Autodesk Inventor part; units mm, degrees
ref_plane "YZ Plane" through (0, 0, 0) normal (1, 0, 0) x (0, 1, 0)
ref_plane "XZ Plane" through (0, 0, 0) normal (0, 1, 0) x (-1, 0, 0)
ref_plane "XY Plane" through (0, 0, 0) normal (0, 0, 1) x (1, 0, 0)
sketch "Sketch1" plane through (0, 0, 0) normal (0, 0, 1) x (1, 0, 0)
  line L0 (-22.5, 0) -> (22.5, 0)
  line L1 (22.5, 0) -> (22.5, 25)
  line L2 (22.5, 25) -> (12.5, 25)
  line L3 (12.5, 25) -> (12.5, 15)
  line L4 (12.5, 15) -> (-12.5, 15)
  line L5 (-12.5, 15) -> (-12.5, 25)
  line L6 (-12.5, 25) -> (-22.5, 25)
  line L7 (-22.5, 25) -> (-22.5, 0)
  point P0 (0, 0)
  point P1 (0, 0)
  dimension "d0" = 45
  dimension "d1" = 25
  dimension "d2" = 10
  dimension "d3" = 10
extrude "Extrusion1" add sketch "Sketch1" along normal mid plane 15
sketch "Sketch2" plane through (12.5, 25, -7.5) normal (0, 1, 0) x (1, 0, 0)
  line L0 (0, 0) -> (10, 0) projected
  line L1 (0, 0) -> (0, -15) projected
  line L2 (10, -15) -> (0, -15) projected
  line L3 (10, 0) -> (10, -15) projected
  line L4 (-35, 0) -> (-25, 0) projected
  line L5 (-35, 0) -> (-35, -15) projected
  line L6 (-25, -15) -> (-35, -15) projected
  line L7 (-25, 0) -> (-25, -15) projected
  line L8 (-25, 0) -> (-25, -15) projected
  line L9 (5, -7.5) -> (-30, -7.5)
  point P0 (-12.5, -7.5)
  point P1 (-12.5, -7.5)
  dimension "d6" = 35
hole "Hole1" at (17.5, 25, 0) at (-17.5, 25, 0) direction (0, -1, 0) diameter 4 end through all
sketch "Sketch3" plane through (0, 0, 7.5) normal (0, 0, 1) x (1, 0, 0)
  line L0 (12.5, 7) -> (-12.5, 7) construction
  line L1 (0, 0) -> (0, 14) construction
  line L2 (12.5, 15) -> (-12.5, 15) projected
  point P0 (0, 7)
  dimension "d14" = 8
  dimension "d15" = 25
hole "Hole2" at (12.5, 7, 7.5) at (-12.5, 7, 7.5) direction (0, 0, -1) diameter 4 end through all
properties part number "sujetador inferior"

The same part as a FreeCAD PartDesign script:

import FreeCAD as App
import Part
import Sketcher

doc = App.newDocument("Part")
body = doc.addObject("PartDesign::Body", "Body")

# Sketch on XY plane
sketch1 = body.newObject("Sketcher::SketchObject", "Sketch")
sketch1.AttachmentSupport = (doc.getObject("XY_Plane"), [""])
sketch1.MapMode = "FlatFace"
sketch1.addGeometry(Part.LineSegment(App.Vector(-22, 25, 0), App.Vector(-22, 0, 0)), False)
sketch1.addGeometry(Part.LineSegment(App.Vector(-22, 0, 0), App.Vector(22, 0, 0)), False)
sketch1.addGeometry(Part.LineSegment(App.Vector(22, 0, 0), App.Vector(22, 25, 0)), False)
sketch1.addGeometry(Part.LineSegment(App.Vector(22, 25, 0), App.Vector(12, 25, 0)), False)
sketch1.addGeometry(Part.LineSegment(App.Vector(12, 25, 0), App.Vector(12, 15, 0)), False)
sketch1.addGeometry(Part.LineSegment(App.Vector(12, 15, 0), App.Vector(-12, 15, 0)), False)
sketch1.addGeometry(Part.LineSegment(App.Vector(-12, 15, 0), App.Vector(-12, 25, 0)), False)
sketch1.addGeometry(Part.LineSegment(App.Vector(-12, 25, 0), App.Vector(-22, 25, 0)), False)
sketch1.addConstraint(Sketcher.Constraint("Coincident", 0, 2, 1, 1))
sketch1.addConstraint(Sketcher.Constraint("Coincident", 1, 2, 2, 1))
sketch1.addConstraint(Sketcher.Constraint("Coincident", 2, 2, 3, 1))
sketch1.addConstraint(Sketcher.Constraint("Coincident", 3, 2, 4, 1))
sketch1.addConstraint(Sketcher.Constraint("Coincident", 4, 2, 5, 1))
sketch1.addConstraint(Sketcher.Constraint("Coincident", 5, 2, 6, 1))
sketch1.addConstraint(Sketcher.Constraint("Coincident", 6, 2, 7, 1))
sketch1.addConstraint(Sketcher.Constraint("Coincident", 7, 2, 0, 1))
sketch1.addConstraint(Sketcher.Constraint("Vertical", 0))
sketch1.addConstraint(Sketcher.Constraint("Horizontal", 1))
sketch1.addConstraint(Sketcher.Constraint("Vertical", 2))
sketch1.addConstraint(Sketcher.Constraint("Horizontal", 3))
sketch1.addConstraint(Sketcher.Constraint("Vertical", 4))
sketch1.addConstraint(Sketcher.Constraint("Horizontal", 5))
sketch1.addConstraint(Sketcher.Constraint("Vertical", 6))
sketch1.addConstraint(Sketcher.Constraint("Horizontal", 7))
sketch1.addConstraint(Sketcher.Constraint("Symmetric", 0, 2, 1, 2, -1, 1))
sketch1.addConstraint(Sketcher.Constraint("Symmetric", 3, 2, 6, 2, -2))
sketch1.addConstraint(Sketcher.Constraint("Equal", 5, 0))
sketch1.addConstraint(Sketcher.Constraint("Equal", 7, 4))
sketch1.addConstraint(Sketcher.Constraint("DistanceX", 1, 1, 1, 2, 45.0))
sketch1.addConstraint(Sketcher.Constraint("DistanceX", 3, 2, 3, 1, 10.0))
pad1 = body.newObject("PartDesign::Pad", "Pad")
pad1.Profile = sketch1
pad1.Length = 15
pad1.Midplane = True

# Sketch on XZ plane
sketch2 = body.newObject("Sketcher::SketchObject", "Sketch001")
sketch2.AttachmentSupport = (doc.getObject("XZ_Plane"), [""])
sketch2.MapMode = "FlatFace"
sketch2.AttachmentOffset = App.Placement(App.Vector(0, 0, -25), App.Rotation())
sketch2.addGeometry(Part.Circle(App.Vector(17.5, 0, 0), App.Vector(0, 0, 1), 2), False)
sketch2.addGeometry(Part.Circle(App.Vector(-17.5, 0, 0), App.Vector(0, 0, 1), 2), False)
sketch2.addConstraint(Sketcher.Constraint("Equal", 0, 1))
sketch2.addConstraint(Sketcher.Constraint("Symmetric", 0, 3, 1, 3, -1, 1))
sketch2.addConstraint(Sketcher.Constraint("PointOnObject", 0, 3, -1))
sketch2.addConstraint(Sketcher.Constraint("Diameter", 0, 4.0))
sketch2.addConstraint(Sketcher.Constraint("DistanceX", 1, 3, 0, 3, 35.0))
doc.recompute()
hole = body.newObject("PartDesign::Hole", "Hole")
hole.Profile = sketch2
hole.ThreadType = "None"
hole.Diameter = 4
hole.DepthType = "ThroughAll"
hole.Reversed = True

# Sketch on XY plane
sketch3 = body.newObject("Sketcher::SketchObject", "Sketch002")
sketch3.AttachmentSupport = (doc.getObject("XY_Plane"), [""])
sketch3.MapMode = "FlatFace"
sketch3.AttachmentOffset = App.Placement(App.Vector(0, 0, 7.5), App.Rotation())
sketch3.addGeometry(Part.Circle(App.Vector(12.5, 7, 0), App.Vector(0, 0, 1), 2), False)
sketch3.addGeometry(Part.Circle(App.Vector(-12.5, 7, 0), App.Vector(0, 0, 1), 2), False)
sketch3.addConstraint(Sketcher.Constraint("Equal", 0, 1))
sketch3.addConstraint(Sketcher.Constraint("Symmetric", 0, 3, 1, 3, -2))
sketch3.addConstraint(Sketcher.Constraint("Diameter", 0, 4.0))
sketch3.addConstraint(Sketcher.Constraint("DistanceY", -1, 1, 0, 3, 7.0))
sketch3.addConstraint(Sketcher.Constraint("DistanceX", 1, 3, 0, 3, 25.0))
doc.recompute()
hole2 = body.newObject("PartDesign::Hole", "Hole001")
hole2.Profile = sketch3
hole2.ThreadType = "None"
hole2.Diameter = 4
hole2.DepthType = "ThroughAll"

doc.recompute()
